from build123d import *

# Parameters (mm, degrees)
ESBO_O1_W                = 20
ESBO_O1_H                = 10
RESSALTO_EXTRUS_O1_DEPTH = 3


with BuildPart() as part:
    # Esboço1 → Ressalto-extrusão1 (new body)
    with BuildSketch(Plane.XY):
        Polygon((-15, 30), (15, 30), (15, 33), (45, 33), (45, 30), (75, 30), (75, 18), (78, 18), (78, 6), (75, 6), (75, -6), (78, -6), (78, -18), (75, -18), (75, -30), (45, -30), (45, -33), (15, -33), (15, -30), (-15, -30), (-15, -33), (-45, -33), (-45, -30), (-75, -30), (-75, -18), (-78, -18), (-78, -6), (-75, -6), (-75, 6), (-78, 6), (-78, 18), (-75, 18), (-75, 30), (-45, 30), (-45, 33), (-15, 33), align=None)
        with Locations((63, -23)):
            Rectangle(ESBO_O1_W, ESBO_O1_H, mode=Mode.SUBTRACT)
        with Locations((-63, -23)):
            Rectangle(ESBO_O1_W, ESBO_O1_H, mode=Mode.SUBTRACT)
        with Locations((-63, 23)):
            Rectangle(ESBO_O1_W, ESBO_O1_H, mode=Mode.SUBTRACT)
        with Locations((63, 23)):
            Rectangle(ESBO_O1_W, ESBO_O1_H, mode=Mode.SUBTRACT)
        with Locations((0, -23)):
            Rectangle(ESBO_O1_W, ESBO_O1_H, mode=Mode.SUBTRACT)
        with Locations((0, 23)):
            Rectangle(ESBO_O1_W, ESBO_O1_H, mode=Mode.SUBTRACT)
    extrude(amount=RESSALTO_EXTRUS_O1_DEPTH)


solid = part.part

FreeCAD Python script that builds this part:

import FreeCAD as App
import Part
import Sketcher

V = App.Vector

doc = App.newDocument("Part")
params = doc.addObject("Spreadsheet::Sheet", "Params")
for row, (alias, value) in enumerate([
    ("sketch1_width", "30 mm"),
    ("sketch1_width2", "3 mm"),
    ("sketch1_width3", "20 mm"),
    ("sketch1_height", "12 mm"),
    ("sketch1_height2", "10 mm"),
    ("pad1_length", "3 mm"),
], start=1):
    params.set(f"A{row}", alias)
    params.set(f"B{row}", "=" + value)
    params.setAlias(f"B{row}", alias)

body = doc.addObject("PartDesign::Body", "Body")

# Sketch on XY plane
sketch1 = body.newObject("Sketcher::SketchObject", "Sketch")
sketch1.AttachmentSupport = (doc.getObject("XY_Plane"), [""])
sketch1.MapMode = "FlatFace"
sketch1.addGeometry([
    Part.LineSegment(V(15, 30, 0), V(-15, 30, 0)),  # 0
    Part.LineSegment(V(-15, 30, 0), V(-15, 33, 0)),  # 1
    Part.LineSegment(V(-15, 33, 0), V(-45, 33, 0)),  # 2
    Part.LineSegment(V(-45, 33, 0), V(-45, 30, 0)),  # 3
    Part.LineSegment(V(-45, 30, 0), V(-75, 30, 0)),  # 4
    Part.LineSegment(V(-75, 30, 0), V(-75, 18, 0)),  # 5
    Part.LineSegment(V(-75, 18, 0), V(-78, 18, 0)),  # 6
    Part.LineSegment(V(-78, 18, 0), V(-78, 6, 0)),  # 7
    Part.LineSegment(V(-78, 6, 0), V(-75, 6, 0)),  # 8
    Part.LineSegment(V(-75, 6, 0), V(-75, -6, 0)),  # 9
    Part.LineSegment(V(-75, -6, 0), V(-78, -6, 0)),  # 10
    Part.LineSegment(V(-78, -6, 0), V(-78, -18, 0)),  # 11
    Part.LineSegment(V(-78, -18, 0), V(-75, -18, 0)),  # 12
    Part.LineSegment(V(-75, -18, 0), V(-75, -30, 0)),  # 13
    Part.LineSegment(V(-75, -30, 0), V(-45, -30, 0)),  # 14
    Part.LineSegment(V(-45, -30, 0), V(-45, -33, 0)),  # 15
    Part.LineSegment(V(-45, -33, 0), V(-15, -33, 0)),  # 16
    Part.LineSegment(V(-15, -33, 0), V(-15, -30, 0)),  # 17
    Part.LineSegment(V(-15, -30, 0), V(15, -30, 0)),  # 18
    Part.LineSegment(V(15, -30, 0), V(15, -33, 0)),  # 19
    Part.LineSegment(V(15, -33, 0), V(45, -33, 0)),  # 20
    Part.LineSegment(V(45, -33, 0), V(45, -30, 0)),  # 21
    Part.LineSegment(V(45, -30, 0), V(75, -30, 0)),  # 22
    Part.LineSegment(V(75, -30, 0), V(75, -18, 0)),  # 23
    Part.LineSegment(V(75, -18, 0), V(78, -18, 0)),  # 24
    Part.LineSegment(V(78, -18, 0), V(78, -6, 0)),  # 25
    Part.LineSegment(V(78, -6, 0), V(75, -6, 0)),  # 26
    Part.LineSegment(V(75, -6, 0), V(75, 6, 0)),  # 27
    Part.LineSegment(V(75, 6, 0), V(78, 6, 0)),  # 28
    Part.LineSegment(V(78, 6, 0), V(78, 18, 0)),  # 29
    Part.LineSegment(V(78, 18, 0), V(75, 18, 0)),  # 30
    Part.LineSegment(V(75, 18, 0), V(75, 30, 0)),  # 31
    Part.LineSegment(V(75, 30, 0), V(45, 30, 0)),  # 32
    Part.LineSegment(V(45, 30, 0), V(45, 33, 0)),  # 33
    Part.LineSegment(V(45, 33, 0), V(15, 33, 0)),  # 34
    Part.LineSegment(V(15, 33, 0), V(15, 30, 0)),  # 35
    Part.LineSegment(V(53, -28, 0), V(53, -18, 0)),  # 36
    Part.LineSegment(V(53, -18, 0), V(73, -18, 0)),  # 37
    Part.LineSegment(V(73, -18, 0), V(73, -28, 0)),  # 38
    Part.LineSegment(V(73, -28, 0), V(53, -28, 0)),  # 39
    Part.LineSegment(V(-10, -28, 0), V(-10, -18, 0)),  # 40
    Part.LineSegment(V(-10, -18, 0), V(10, -18, 0)),  # 41
    Part.LineSegment(V(10, -18, 0), V(10, -28, 0)),  # 42
    Part.LineSegment(V(10, -28, 0), V(-10, -28, 0)),  # 43
    Part.LineSegment(V(-73, -28, 0), V(-73, -18, 0)),  # 44
    Part.LineSegment(V(-73, -18, 0), V(-53, -18, 0)),  # 45
    Part.LineSegment(V(-53, -18, 0), V(-53, -28, 0)),  # 46
    Part.LineSegment(V(-53, -28, 0), V(-73, -28, 0)),  # 47
    Part.LineSegment(V(53, 18, 0), V(53, 28, 0)),  # 48
    Part.LineSegment(V(53, 28, 0), V(73, 28, 0)),  # 49
    Part.LineSegment(V(73, 28, 0), V(73, 18, 0)),  # 50
    Part.LineSegment(V(73, 18, 0), V(53, 18, 0)),  # 51
    Part.LineSegment(V(-10, 18, 0), V(-10, 28, 0)),  # 52
    Part.LineSegment(V(-10, 28, 0), V(10, 28, 0)),  # 53
    Part.LineSegment(V(10, 28, 0), V(10, 18, 0)),  # 54
    Part.LineSegment(V(10, 18, 0), V(-10, 18, 0)),  # 55
    Part.LineSegment(V(-73, 18, 0), V(-73, 28, 0)),  # 56
    Part.LineSegment(V(-73, 28, 0), V(-53, 28, 0)),  # 57
    Part.LineSegment(V(-53, 28, 0), V(-53, 18, 0)),  # 58
    Part.LineSegment(V(-53, 18, 0), V(-73, 18, 0)),  # 59
], False)
sketch1.addConstraint([
    Sketcher.Constraint("Coincident", 0, 2, 1, 1),
    Sketcher.Constraint("Coincident", 1, 2, 2, 1),
    Sketcher.Constraint("Coincident", 2, 2, 3, 1),
    Sketcher.Constraint("Coincident", 3, 2, 4, 1),
    Sketcher.Constraint("Coincident", 4, 2, 5, 1),
    Sketcher.Constraint("Coincident", 5, 2, 6, 1),
    Sketcher.Constraint("Coincident", 6, 2, 7, 1),
    Sketcher.Constraint("Coincident", 7, 2, 8, 1),
    Sketcher.Constraint("Coincident", 8, 2, 9, 1),
    Sketcher.Constraint("Coincident", 9, 2, 10, 1),
    Sketcher.Constraint("Coincident", 10, 2, 11, 1),
    Sketcher.Constraint("Coincident", 11, 2, 12, 1),
    Sketcher.Constraint("Coincident", 12, 2, 13, 1),
    Sketcher.Constraint("Coincident", 13, 2, 14, 1),
    Sketcher.Constraint("Coincident", 14, 2, 15, 1),
    Sketcher.Constraint("Coincident", 15, 2, 16, 1),
    Sketcher.Constraint("Coincident", 16, 2, 17, 1),
    Sketcher.Constraint("Coincident", 17, 2, 18, 1),
    Sketcher.Constraint("Coincident", 18, 2, 19, 1),
    Sketcher.Constraint("Coincident", 19, 2, 20, 1),
    Sketcher.Constraint("Coincident", 20, 2, 21, 1),
    Sketcher.Constraint("Coincident", 21, 2, 22, 1),
    Sketcher.Constraint("Coincident", 22, 2, 23, 1),
    Sketcher.Constraint("Coincident", 23, 2, 24, 1),
    Sketcher.Constraint("Coincident", 24, 2, 25, 1),
    Sketcher.Constraint("Coincident", 25, 2, 26, 1),
    Sketcher.Constraint("Coincident", 26, 2, 27, 1),
    Sketcher.Constraint("Coincident", 27, 2, 28, 1),
    Sketcher.Constraint("Coincident", 28, 2, 29, 1),
    Sketcher.Constraint("Coincident", 29, 2, 30, 1),
    Sketcher.Constraint("Coincident", 30, 2, 31, 1),
    Sketcher.Constraint("Coincident", 31, 2, 32, 1),
    Sketcher.Constraint("Coincident", 32, 2, 33, 1),
    Sketcher.Constraint("Coincident", 33, 2, 34, 1),
    Sketcher.Constraint("Coincident", 34, 2, 35, 1),
    Sketcher.Constraint("Coincident", 35, 2, 0, 1),
    Sketcher.Constraint("Coincident", 36, 2, 37, 1),
    Sketcher.Constraint("Coincident", 37, 2, 38, 1),
    Sketcher.Constraint("Coincident", 38, 2, 39, 1),
    Sketcher.Constraint("Coincident", 39, 2, 36, 1),
    Sketcher.Constraint("Coincident", 40, 2, 41, 1),
    Sketcher.Constraint("Coincident", 41, 2, 42, 1),
    Sketcher.Constraint("Coincident", 42, 2, 43, 1),
    Sketcher.Constraint("Coincident", 43, 2, 40, 1),
    Sketcher.Constraint("Coincident", 44, 2, 45, 1),
    Sketcher.Constraint("Coincident", 45, 2, 46, 1),
    Sketcher.Constraint("Coincident", 46, 2, 47, 1),
    Sketcher.Constraint("Coincident", 47, 2, 44, 1),
    Sketcher.Constraint("Coincident", 48, 2, 49, 1),
    Sketcher.Constraint("Coincident", 49, 2, 50, 1),
    Sketcher.Constraint("Coincident", 50, 2, 51, 1),
    Sketcher.Constraint("Coincident", 51, 2, 48, 1),
    Sketcher.Constraint("Coincident", 52, 2, 53, 1),
    Sketcher.Constraint("Coincident", 53, 2, 54, 1),
    Sketcher.Constraint("Coincident", 54, 2, 55, 1),
    Sketcher.Constraint("Coincident", 55, 2, 52, 1),
    Sketcher.Constraint("Coincident", 56, 2, 57, 1),
    Sketcher.Constraint("Coincident", 57, 2, 58, 1),
    Sketcher.Constraint("Coincident", 58, 2, 59, 1),
    Sketcher.Constraint("Coincident", 59, 2, 56, 1),
    Sketcher.Constraint("Horizontal", 0),
    Sketcher.Constraint("Vertical", 1),
    Sketcher.Constraint("Horizontal", 2),
    Sketcher.Constraint("Vertical", 3),
    Sketcher.Constraint("Horizontal", 4),
    Sketcher.Constraint("Vertical", 5),
    Sketcher.Constraint("Horizontal", 6),
    Sketcher.Constraint("Vertical", 7),
    Sketcher.Constraint("Horizontal", 8),
    Sketcher.Constraint("Vertical", 9),
    Sketcher.Constraint("Horizontal", 10),
    Sketcher.Constraint("Vertical", 11),
    Sketcher.Constraint("Horizontal", 12),
    Sketcher.Constraint("Vertical", 13),
    Sketcher.Constraint("Horizontal", 14),
    Sketcher.Constraint("Vertical", 15),
    Sketcher.Constraint("Horizontal", 16),
    Sketcher.Constraint("Vertical", 17),
    Sketcher.Constraint("Horizontal", 18),
    Sketcher.Constraint("Vertical", 19),
    Sketcher.Constraint("Horizontal", 20),
    Sketcher.Constraint("Vertical", 21),
    Sketcher.Constraint("Horizontal", 22),
    Sketcher.Constraint("Vertical", 23),
    Sketcher.Constraint("Horizontal", 24),
    Sketcher.Constraint("Vertical", 25),
    Sketcher.Constraint("Horizontal", 26),
    Sketcher.Constraint("Vertical", 27),
    Sketcher.Constraint("Horizontal", 28),
    Sketcher.Constraint("Vertical", 29),
    Sketcher.Constraint("Horizontal", 30),
    Sketcher.Constraint("Vertical", 31),
    Sketcher.Constraint("Horizontal", 32),
    Sketcher.Constraint("Vertical", 33),
    Sketcher.Constraint("Horizontal", 34),
    Sketcher.Constraint("Vertical", 35),
    Sketcher.Constraint("Vertical", 36),
    Sketcher.Constraint("Horizontal", 37),
    Sketcher.Constraint("Vertical", 38),
    Sketcher.Constraint("Horizontal", 39),
    Sketcher.Constraint("Vertical", 40),
    Sketcher.Constraint("Horizontal", 41),
    Sketcher.Constraint("Vertical", 42),
    Sketcher.Constraint("Horizontal", 43),
    Sketcher.Constraint("Vertical", 44),
    Sketcher.Constraint("Horizontal", 45),
    Sketcher.Constraint("Vertical", 46),
    Sketcher.Constraint("Horizontal", 47),
    Sketcher.Constraint("Vertical", 48),
    Sketcher.Constraint("Horizontal", 49),
    Sketcher.Constraint("Vertical", 50),
    Sketcher.Constraint("Horizontal", 51),
    Sketcher.Constraint("Vertical", 52),
    Sketcher.Constraint("Horizontal", 53),
    Sketcher.Constraint("Vertical", 54),
    Sketcher.Constraint("Horizontal", 55),
    Sketcher.Constraint("Vertical", 56),
    Sketcher.Constraint("Horizontal", 57),
    Sketcher.Constraint("Vertical", 58),
    Sketcher.Constraint("Horizontal", 59),
    Sketcher.Constraint("Symmetric", 0, 2, 18, 2, -1, 1),
    Sketcher.Constraint("Symmetric", 2, 2, 20, 2, -1, 1),
    Sketcher.Constraint("Symmetric", 4, 2, 22, 2, -1, 1),
    Sketcher.Constraint("Symmetric", 6, 2, 24, 2, -1, 1),
    Sketcher.Constraint("Symmetric", 8, 2, 26, 2, -1, 1),
    Sketcher.Constraint("Symmetric", 10, 2, 28, 2, -1, 1),
    Sketcher.Constraint("Symmetric", 12, 2, 30, 2, -1, 1),
    Sketcher.Constraint("Symmetric", 14, 2, 32, 2, -1, 1),
    Sketcher.Constraint("Symmetric", 16, 2, 34, 2, -1, 1),
    Sketcher.Constraint("Symmetric", 46, 2, 48, 2, -1, 1),
    Sketcher.Constraint("Symmetric", 44, 2, 50, 2, -1, 1),
    Sketcher.Constraint("Symmetric", 42, 2, 52, 2, -1, 1),
    Sketcher.Constraint("Symmetric", 40, 2, 54, 2, -1, 1),
    Sketcher.Constraint("Symmetric", 38, 2, 56, 2, -1, 1),
    Sketcher.Constraint("Symmetric", 36, 2, 58, 2, -1, 1),
    Sketcher.Constraint("Symmetric", 16, 2, 19, 2, -2),
    Sketcher.Constraint("Symmetric", 14, 2, 21, 2, -2),
    Sketcher.Constraint("Symmetric", 12, 2, 23, 2, -2),
    Sketcher.Constraint("Symmetric", 10, 2, 25, 2, -2),
    Sketcher.Constraint("Symmetric", 37, 2, 44, 2, -2),
    Sketcher.Constraint("Symmetric", 39, 2, 46, 2, -2),
    Sketcher.Constraint("Horizontal", 0, 2, 3, 2),
    Sketcher.Constraint("Horizontal", 24, 2, 36, 2),
    Sketcher.Constraint("Horizontal", 37, 2, 40, 2),
    Sketcher.Constraint("Horizontal", 39, 2, 42, 2),
    Sketcher.Constraint("Vertical", 5, 2, 8, 2),
    Sketcher.Constraint("Vertical", 43, 2, 52, 2),
    Sketcher.Constraint("Equal", 0, 2),
    Sketcher.Constraint("Equal", 2, 4),
    Sketcher.Constraint("Equal", 39, 41),
    Sketcher.Constraint("Equal", 30, 1),
    Sketcher.Constraint("Equal", 5, 7),
    Sketcher.Constraint("Equal", 7, 9),
    Sketcher.Constraint("DistanceX", 0, 2, 0, 1, 30.0),
    Sketcher.Constraint("DistanceX", 6, 2, 6, 1, 3.0),
    Sketcher.Constraint("DistanceX", 37, 1, 37, 2, 20.0),
    Sketcher.Constraint("DistanceY", 5, 2, 5, 1, 12.0),
    Sketcher.Constraint("DistanceY", 36, 1, 36, 2, 10.0),
    Sketcher.Constraint("DistanceX", -1, 1, 36, 2, 53.0),
])
sketch1.setExpression("Constraints[153]", "Params.sketch1_width")
sketch1.setExpression("Constraints[154]", "Params.sketch1_width2")
sketch1.setExpression("Constraints[155]", "Params.sketch1_width3")
sketch1.setExpression("Constraints[156]", "Params.sketch1_height")
sketch1.setExpression("Constraints[157]", "Params.sketch1_height2")
pad1 = body.newObject("PartDesign::Pad", "Pad")
pad1.Profile = sketch1
pad1.setExpression("Length", "Params.pad1_length")

doc.recompute()
